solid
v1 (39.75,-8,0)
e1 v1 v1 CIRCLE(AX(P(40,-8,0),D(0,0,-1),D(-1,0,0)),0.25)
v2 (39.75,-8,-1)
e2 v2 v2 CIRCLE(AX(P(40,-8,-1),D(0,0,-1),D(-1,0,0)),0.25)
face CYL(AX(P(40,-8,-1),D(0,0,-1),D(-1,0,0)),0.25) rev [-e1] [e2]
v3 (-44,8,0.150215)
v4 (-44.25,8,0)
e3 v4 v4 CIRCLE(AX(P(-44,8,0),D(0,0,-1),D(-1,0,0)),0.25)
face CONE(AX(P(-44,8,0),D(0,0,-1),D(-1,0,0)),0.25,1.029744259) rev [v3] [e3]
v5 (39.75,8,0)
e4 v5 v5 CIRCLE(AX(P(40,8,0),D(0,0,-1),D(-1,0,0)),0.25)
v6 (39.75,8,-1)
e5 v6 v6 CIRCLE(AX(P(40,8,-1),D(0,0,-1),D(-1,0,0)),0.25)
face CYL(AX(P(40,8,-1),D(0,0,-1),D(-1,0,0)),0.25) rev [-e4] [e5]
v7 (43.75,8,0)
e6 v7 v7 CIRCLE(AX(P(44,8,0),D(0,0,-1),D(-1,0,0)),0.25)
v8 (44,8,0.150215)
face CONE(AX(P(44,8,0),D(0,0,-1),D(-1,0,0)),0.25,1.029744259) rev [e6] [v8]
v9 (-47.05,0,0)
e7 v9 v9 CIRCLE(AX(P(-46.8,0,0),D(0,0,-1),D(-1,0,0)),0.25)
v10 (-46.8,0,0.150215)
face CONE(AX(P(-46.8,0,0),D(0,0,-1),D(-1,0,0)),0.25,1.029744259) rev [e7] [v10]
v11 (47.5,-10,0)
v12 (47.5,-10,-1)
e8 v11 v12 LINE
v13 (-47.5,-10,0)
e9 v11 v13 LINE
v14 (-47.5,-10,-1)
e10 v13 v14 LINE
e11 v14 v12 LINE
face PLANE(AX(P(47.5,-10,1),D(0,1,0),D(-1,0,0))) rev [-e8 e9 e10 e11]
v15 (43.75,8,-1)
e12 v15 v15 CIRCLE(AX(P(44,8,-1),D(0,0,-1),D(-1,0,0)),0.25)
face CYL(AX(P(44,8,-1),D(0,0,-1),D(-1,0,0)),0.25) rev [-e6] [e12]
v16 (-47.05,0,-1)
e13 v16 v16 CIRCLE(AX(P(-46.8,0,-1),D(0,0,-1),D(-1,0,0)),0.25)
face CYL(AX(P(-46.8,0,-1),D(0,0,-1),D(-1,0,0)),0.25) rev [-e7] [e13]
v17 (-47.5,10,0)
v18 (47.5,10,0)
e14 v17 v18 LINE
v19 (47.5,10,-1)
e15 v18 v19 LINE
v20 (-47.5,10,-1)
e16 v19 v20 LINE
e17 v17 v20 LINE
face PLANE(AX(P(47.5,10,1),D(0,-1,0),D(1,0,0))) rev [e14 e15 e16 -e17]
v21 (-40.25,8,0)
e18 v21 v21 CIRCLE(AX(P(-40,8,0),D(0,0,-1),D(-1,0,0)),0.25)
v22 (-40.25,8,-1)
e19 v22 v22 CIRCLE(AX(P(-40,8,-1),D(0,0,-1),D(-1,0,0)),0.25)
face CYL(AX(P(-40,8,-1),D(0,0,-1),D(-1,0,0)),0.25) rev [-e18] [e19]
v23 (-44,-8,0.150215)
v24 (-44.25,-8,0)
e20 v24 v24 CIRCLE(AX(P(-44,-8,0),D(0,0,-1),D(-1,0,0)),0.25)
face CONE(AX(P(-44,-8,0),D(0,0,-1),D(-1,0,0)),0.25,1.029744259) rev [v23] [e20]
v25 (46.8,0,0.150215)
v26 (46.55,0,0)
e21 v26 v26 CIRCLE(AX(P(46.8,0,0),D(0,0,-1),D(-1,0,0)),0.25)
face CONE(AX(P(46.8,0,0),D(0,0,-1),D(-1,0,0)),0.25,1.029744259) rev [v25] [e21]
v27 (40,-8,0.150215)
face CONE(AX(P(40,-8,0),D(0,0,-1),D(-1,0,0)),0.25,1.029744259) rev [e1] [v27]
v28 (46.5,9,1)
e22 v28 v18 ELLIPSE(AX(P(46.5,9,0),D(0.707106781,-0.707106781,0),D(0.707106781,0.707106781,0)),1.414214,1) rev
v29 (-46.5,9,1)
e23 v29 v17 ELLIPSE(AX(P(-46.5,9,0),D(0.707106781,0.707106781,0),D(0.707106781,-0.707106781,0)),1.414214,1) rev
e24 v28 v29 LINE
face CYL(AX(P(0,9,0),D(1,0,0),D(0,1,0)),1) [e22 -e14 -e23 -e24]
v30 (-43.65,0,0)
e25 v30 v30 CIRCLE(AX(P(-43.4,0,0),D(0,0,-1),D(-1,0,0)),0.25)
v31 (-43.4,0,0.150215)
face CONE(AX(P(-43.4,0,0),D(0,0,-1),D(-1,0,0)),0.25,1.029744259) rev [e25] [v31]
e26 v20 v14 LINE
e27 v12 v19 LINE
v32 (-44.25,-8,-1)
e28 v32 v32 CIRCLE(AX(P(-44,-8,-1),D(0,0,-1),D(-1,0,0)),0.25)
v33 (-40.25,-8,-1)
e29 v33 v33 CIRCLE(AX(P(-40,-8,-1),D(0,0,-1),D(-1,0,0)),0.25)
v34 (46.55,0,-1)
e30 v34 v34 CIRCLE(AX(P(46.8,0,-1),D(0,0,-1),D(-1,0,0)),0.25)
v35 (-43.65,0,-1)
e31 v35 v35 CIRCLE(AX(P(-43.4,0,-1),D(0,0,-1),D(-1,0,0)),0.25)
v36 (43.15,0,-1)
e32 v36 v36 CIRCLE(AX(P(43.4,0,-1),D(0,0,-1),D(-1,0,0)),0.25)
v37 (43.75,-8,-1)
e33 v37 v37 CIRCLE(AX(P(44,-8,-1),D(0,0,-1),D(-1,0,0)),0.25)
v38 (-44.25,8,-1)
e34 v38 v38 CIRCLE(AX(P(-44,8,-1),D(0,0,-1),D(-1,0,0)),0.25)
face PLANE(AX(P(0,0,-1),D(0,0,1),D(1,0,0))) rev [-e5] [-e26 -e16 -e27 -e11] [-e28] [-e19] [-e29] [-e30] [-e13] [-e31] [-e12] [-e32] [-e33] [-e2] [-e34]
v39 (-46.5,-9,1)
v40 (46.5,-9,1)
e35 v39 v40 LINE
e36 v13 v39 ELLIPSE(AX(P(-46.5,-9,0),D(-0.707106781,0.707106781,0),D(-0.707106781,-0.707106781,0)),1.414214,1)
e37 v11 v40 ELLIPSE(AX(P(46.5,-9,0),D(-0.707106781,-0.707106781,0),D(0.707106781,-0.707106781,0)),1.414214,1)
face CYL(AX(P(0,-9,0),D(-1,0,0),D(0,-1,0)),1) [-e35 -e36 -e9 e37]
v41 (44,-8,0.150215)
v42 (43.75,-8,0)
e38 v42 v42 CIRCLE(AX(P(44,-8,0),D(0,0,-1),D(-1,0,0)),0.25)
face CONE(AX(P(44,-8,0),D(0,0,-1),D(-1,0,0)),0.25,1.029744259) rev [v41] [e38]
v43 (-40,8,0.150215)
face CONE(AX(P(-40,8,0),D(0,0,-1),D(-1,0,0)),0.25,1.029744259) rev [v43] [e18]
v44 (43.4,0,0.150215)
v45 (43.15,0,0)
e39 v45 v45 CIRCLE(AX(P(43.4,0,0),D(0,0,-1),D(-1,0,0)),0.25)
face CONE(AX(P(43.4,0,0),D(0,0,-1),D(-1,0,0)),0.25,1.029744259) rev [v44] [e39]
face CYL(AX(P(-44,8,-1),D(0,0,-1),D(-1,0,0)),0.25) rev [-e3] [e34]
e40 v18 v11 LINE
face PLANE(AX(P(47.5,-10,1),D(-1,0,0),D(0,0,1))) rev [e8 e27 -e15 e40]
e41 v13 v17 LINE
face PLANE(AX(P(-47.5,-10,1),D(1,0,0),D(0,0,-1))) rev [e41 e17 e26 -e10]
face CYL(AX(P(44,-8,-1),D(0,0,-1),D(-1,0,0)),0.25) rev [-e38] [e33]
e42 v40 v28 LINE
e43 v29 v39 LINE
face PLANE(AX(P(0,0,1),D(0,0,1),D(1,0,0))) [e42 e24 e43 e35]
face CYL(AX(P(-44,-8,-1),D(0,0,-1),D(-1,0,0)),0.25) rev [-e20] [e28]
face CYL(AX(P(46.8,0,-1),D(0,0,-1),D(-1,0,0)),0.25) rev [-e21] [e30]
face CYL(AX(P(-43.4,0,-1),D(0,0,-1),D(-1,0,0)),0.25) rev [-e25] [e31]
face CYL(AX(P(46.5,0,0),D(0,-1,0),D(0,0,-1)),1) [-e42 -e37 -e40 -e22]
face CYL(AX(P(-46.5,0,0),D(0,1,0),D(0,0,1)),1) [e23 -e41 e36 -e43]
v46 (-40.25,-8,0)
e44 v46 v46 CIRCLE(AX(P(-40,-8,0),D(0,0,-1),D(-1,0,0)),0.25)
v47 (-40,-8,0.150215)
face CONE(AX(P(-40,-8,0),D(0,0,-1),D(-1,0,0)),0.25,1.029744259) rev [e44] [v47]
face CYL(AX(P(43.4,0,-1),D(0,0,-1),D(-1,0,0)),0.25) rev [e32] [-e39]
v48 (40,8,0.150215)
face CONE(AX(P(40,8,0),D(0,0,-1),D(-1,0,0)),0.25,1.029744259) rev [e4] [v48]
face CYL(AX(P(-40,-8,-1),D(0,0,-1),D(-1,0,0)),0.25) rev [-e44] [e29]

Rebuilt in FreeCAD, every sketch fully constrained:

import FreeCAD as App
import Part
import Sketcher
from FreeCAD import Vector
Q = App.Units.Quantity


def edges_at(feature, points):
    """Names of the edges that pass closest to the given points."""
    edges = feature.Shape.Edges
    near = lambda p: min(range(len(edges)), key=lambda i: edges[i].distToShape(Part.Vertex(*p))[0])
    return sorted({f"Edge{near(p) + 1}" for p in points})


def add_polygon(sketch, points):
    """Adds a closed chain of lines whose ends are joined by coincident constraints."""
    first, n = sketch.GeometryCount, len(points)
    for a, b in zip(points, points[1:] + points[:1]):
        sketch.addGeometry(Part.LineSegment(App.Vector(*a, 0), App.Vector(*b, 0)), False)
    for i in range(n):
        sketch.addConstraint(Sketcher.Constraint("Coincident", first + i, 2, first + (i + 1) % n, 1))

doc = App.newDocument("Part")
body = doc.addObject("PartDesign::Body", "Body")

sketch1 = body.newObject("Sketcher::SketchObject", "Sketch")
sketch1.AttachmentSupport = (doc.getObject("XY_Plane"), [""])
sketch1.MapMode = "FlatFace"
add_polygon(sketch1, [(-48, 10), (-48, -10), (48, -10), (48, 10)])
sketch1.addConstraint([
    Sketcher.Constraint("Vertical", 0),
    Sketcher.Constraint("Horizontal", 1),
    Sketcher.Constraint("Vertical", 2),
    Sketcher.Constraint("Horizontal", 3),
    Sketcher.Constraint("Symmetric", 0, 2, 2, 2, -1, 1),
    Sketcher.Constraint("DistanceX", 1, 1, 1, 2, Q("95 mm")),
    Sketcher.Constraint("DistanceY", 0, 2, 0, 1, Q("20 mm")),
])
pad1 = body.newObject("PartDesign::Pad", "Pad")
pad1.Profile = sketch1
pad1.Length = 2
pad1.Midplane = True
doc.recompute()

fillet = body.newObject("PartDesign::Fillet", "Fillet")
fillet.Base = (pad1, edges_at(pad1, [
    (47.5, 0, 1),
    (0, 10, 1),
    (-47.5, 0, 1),
    (0, -10, 1),
]))
fillet.Radius = 1

sketch2 = body.newObject("Sketcher::SketchObject", "Sketch001")
sketch2.AttachmentSupport = (doc.getObject("YZ_Plane"), [""])
sketch2.MapMode = "FlatFace"
sketch2.AttachmentOffset = App.Placement(Vector(0, 0, 44), App.Rotation())
add_polygon(sketch2, [(-8, 0.15), (-8, -1), (-7.75, -1), (-7.75, 0)])
sketch2.addGeometry(Part.LineSegment(Vector(-8, -1, 0), Vector(-8, 0.15, 0)), True)
sketch2.addConstraint([
    Sketcher.Constraint("Vertical", 0),
    Sketcher.Constraint("Horizontal", 1),
    Sketcher.Constraint("Vertical", 2),
    Sketcher.Constraint("Vertical", 4),
    Sketcher.Constraint("Coincident", 4, 1, 0, 2),
    Sketcher.Constraint("PointOnObject", 2, 2, -1),
    Sketcher.Constraint("Equal", 0, 4),
    Sketcher.Constraint("DistanceY", 2, 1, 2, 2, Q("1 mm")),
    Sketcher.Constraint("Angle", 3, Q("149 deg")),
    Sketcher.Constraint("DistanceX", 0, 2, -1, 1, Q("8 mm")),
    Sketcher.Constraint("DistanceX", 1, 1, 1, 2, Q("0.25 mm")),
])
groove = body.newObject("PartDesign::Groove", "Groove")
groove.Profile = sketch2
groove.ReferenceAxis = (sketch2, ["Axis0"])
groove.Angle = 360
doc.recompute()

linearpattern = body.newObject("PartDesign::LinearPattern", "LinearPattern")
linearpattern.Originals = [groove]
linearpattern.Direction = (doc.getObject("X_Axis"), [""])
linearpattern.Mode = "offset"
linearpattern.Offset = 4
linearpattern.Occurrences = 2
linearpattern.Reversed = True
body.Tip = linearpattern
doc.recompute()

linearpattern2 = body.newObject("PartDesign::LinearPattern", "LinearPattern001")
linearpattern2.Originals = [groove]
linearpattern2.Direction = (doc.getObject("X_Axis"), [""])
linearpattern2.Mode = "offset"
linearpattern2.Offset = 84
linearpattern2.Occurrences = 2
linearpattern2.Reversed = True
body.Tip = linearpattern2
doc.recompute()

linearpattern3 = body.newObject("PartDesign::LinearPattern", "LinearPattern002")
linearpattern3.Originals = [groove]
linearpattern3.Direction = (doc.getObject("X_Axis"), [""])
linearpattern3.Mode = "offset"
linearpattern3.Offset = 88
linearpattern3.Occurrences = 2
linearpattern3.Reversed = True
body.Tip = linearpattern3
doc.recompute()

mirrored = body.newObject("PartDesign::Mirrored", "Mirrored")
mirrored.Originals = [groove]
mirrored.MirrorPlane = (doc.getObject("XZ_Plane"), [""])
body.Tip = mirrored

sketch3 = body.newObject("Sketcher::SketchObject", "Sketch002")
sketch3.AttachmentSupport = (doc.getObject("YZ_Plane"), [""])
sketch3.MapMode = "FlatFace"
sketch3.AttachmentOffset = App.Placement(Vector(0, 0, 40), App.Rotation())
add_polygon(sketch3, [(8, -1), (8, 0.15), (7.75, 0), (7.75, -1)])
sketch3.addGeometry(Part.LineSegment(Vector(8, 0.15, 0), Vector(8, -1, 0)), True)
sketch3.addConstraint([
    Sketcher.Constraint("Vertical", 0),
    Sketcher.Constraint("Vertical", 2),
    Sketcher.Constraint("Horizontal", 3),
    Sketcher.Constraint("Vertical", 4),
    Sketcher.Constraint("Coincident", 4, 1, 0, 2),
    Sketcher.Constraint("PointOnObject", 1, 2, -1),
    Sketcher.Constraint("Horizontal", 2, 2, 4, 2),
    Sketcher.Constraint("DistanceY", 2, 2, 2, 1, Q("1 mm")),
    Sketcher.Constraint("Angle", 1, Q("-149 deg")),
    Sketcher.Constraint("DistanceX", -1, 1, 0, 2, Q("8 mm")),
    Sketcher.Constraint("DistanceX", 3, 1, 3, 2, Q("0.25 mm")),
])
groove2 = body.newObject("PartDesign::Groove", "Groove001")
groove2.Profile = sketch3
groove2.ReferenceAxis = (sketch3, ["Axis0"])
groove2.Angle = 360

sketch4 = body.newObject("Sketcher::SketchObject", "Sketch003")
sketch4.AttachmentSupport = (doc.getObject("YZ_Plane"), [""])
sketch4.MapMode = "FlatFace"
sketch4.AttachmentOffset = App.Placement(Vector(0, 0, -40), App.Rotation())
add_polygon(sketch4, [(8, -1), (8, 0.15), (7.75, 0), (7.75, -1)])
sketch4.addGeometry(Part.LineSegment(Vector(8, 0.15, 0), Vector(8, -1, 0)), True)
sketch4.addConstraint([
    Sketcher.Constraint("Vertical", 0),
    Sketcher.Constraint("Vertical", 2),
    Sketcher.Constraint("Horizontal", 3),
    Sketcher.Constraint("Vertical", 4),
    Sketcher.Constraint("Coincident", 4, 1, 0, 2),
    Sketcher.Constraint("PointOnObject", 1, 2, -1),
    Sketcher.Constraint("Horizontal", 2, 2, 4, 2),
    Sketcher.Constraint("DistanceY", 2, 2, 2, 1, Q("1 mm")),
    Sketcher.Constraint("Angle", 1, Q("-149 deg")),
    Sketcher.Constraint("DistanceX", -1, 1, 0, 2, Q("8 mm")),
    Sketcher.Constraint("DistanceX", 3, 1, 3, 2, Q("0.25 mm")),
])
groove3 = body.newObject("PartDesign::Groove", "Groove002")
groove3.Profile = sketch4
groove3.ReferenceAxis = (sketch4, ["Axis0"])
groove3.Angle = 360

sketch5 = body.newObject("Sketcher::SketchObject", "Sketch004")
sketch5.AttachmentSupport = (doc.getObject("YZ_Plane"), [""])
sketch5.MapMode = "FlatFace"
sketch5.AttachmentOffset = App.Placement(Vector(0, 0, -44), App.Rotation())
add_polygon(sketch5, [(8, -1), (8, 0.15), (7.75, 0), (7.75, -1)])
sketch5.addGeometry(Part.LineSegment(Vector(8, 0.15, 0), Vector(8, -1, 0)), True)
sketch5.addConstraint([
    Sketcher.Constraint("Vertical", 0),
    Sketcher.Constraint("Vertical", 2),
    Sketcher.Constraint("Horizontal", 3),
    Sketcher.Constraint("Vertical", 4),
    Sketcher.Constraint("Coincident", 4, 1, 0, 2),
    Sketcher.Constraint("PointOnObject", 1, 2, -1),
    Sketcher.Constraint("Horizontal", 2, 2, 4, 2),
    Sketcher.Constraint("DistanceY", 2, 2, 2, 1, Q("1 mm")),
    Sketcher.Constraint("Angle", 1, Q("-149 deg")),
    Sketcher.Constraint("DistanceX", -1, 1, 0, 2, Q("8 mm")),
    Sketcher.Constraint("DistanceX", 3, 1, 3, 2, Q("0.25 mm")),
])
groove4 = body.newObject("PartDesign::Groove", "Groove003")
groove4.Profile = sketch5
groove4.ReferenceAxis = (sketch5, ["Axis0"])
groove4.Angle = 360

sketch6 = body.newObject("Sketcher::SketchObject", "Sketch005")
sketch6.AttachmentSupport = (doc.getObject("YZ_Plane"), [""])
sketch6.MapMode = "FlatFace"
sketch6.AttachmentOffset = App.Placement(Vector(0, 0, 46.8), App.Rotation())
add_polygon(sketch6, [(0, 0.15), (0, -1), (0.25, -1), (0.25, 0)])
sketch6.addConstraint([
    Sketcher.Constraint("Vertical", 0),
    Sketcher.Constraint("Horizontal", 1),
    Sketcher.Constraint("Vertical", 2),
    Sketcher.Constraint("PointOnObject", 0, 2, -2),
    Sketcher.Constraint("PointOnObject", 2, 2, -1),
    Sketcher.Constraint("DistanceY", 2, 1, 2, 2, Q("1 mm")),
    Sketcher.Constraint("Angle", 3, Q("149 deg")),
    Sketcher.Constraint("DistanceX", 1, 1, 1, 2, Q("0.25 mm")),
])
groove5 = body.newObject("PartDesign::Groove", "Groove004")
groove5.Profile = sketch6
groove5.ReferenceAxis = (sketch6, ["V_Axis"])
groove5.Angle = 360
doc.recompute()

linearpattern4 = body.newObject("PartDesign::LinearPattern", "LinearPattern003")
linearpattern4.Originals = [groove5]
linearpattern4.Direction = (doc.getObject("X_Axis"), [""])
linearpattern4.Mode = "offset"
linearpattern4.Offset = 3.4
linearpattern4.Occurrences = 2
linearpattern4.Reversed = True
body.Tip = linearpattern4
doc.recompute()

mirrored2 = body.newObject("PartDesign::Mirrored", "Mirrored001")
mirrored2.Originals = [groove5]
mirrored2.MirrorPlane = (doc.getObject("YZ_Plane"), [""])
body.Tip = mirrored2

sketch7 = body.newObject("Sketcher::SketchObject", "Sketch006")
sketch7.AttachmentSupport = (doc.getObject("YZ_Plane"), [""])
sketch7.MapMode = "FlatFace"
sketch7.AttachmentOffset = App.Placement(Vector(0, 0, -43.4), App.Rotation())
add_polygon(sketch7, [(0, -1), (0, 0.15), (0.25, 0), (0.25, -1)])
sketch7.addConstraint([
    Sketcher.Constraint("Vertical", 0),
    Sketcher.Constraint("Vertical", 2),
    Sketcher.Constraint("Horizontal", 3),
    Sketcher.Constraint("PointOnObject", 0, 2, -2),
    Sketcher.Constraint("PointOnObject", 1, 2, -1),
    Sketcher.Constraint("DistanceY", 2, 2, 2, 1, Q("1 mm")),
    Sketcher.Constraint("Angle", 1, Q("-31 deg")),
    Sketcher.Constraint("DistanceX", 3, 2, 3, 1, Q("0.25 mm")),
])
groove6 = body.newObject("PartDesign::Groove", "Groove005")
groove6.Profile = sketch7
groove6.ReferenceAxis = (sketch7, ["V_Axis"])
groove6.Angle = 360

doc.recompute()
